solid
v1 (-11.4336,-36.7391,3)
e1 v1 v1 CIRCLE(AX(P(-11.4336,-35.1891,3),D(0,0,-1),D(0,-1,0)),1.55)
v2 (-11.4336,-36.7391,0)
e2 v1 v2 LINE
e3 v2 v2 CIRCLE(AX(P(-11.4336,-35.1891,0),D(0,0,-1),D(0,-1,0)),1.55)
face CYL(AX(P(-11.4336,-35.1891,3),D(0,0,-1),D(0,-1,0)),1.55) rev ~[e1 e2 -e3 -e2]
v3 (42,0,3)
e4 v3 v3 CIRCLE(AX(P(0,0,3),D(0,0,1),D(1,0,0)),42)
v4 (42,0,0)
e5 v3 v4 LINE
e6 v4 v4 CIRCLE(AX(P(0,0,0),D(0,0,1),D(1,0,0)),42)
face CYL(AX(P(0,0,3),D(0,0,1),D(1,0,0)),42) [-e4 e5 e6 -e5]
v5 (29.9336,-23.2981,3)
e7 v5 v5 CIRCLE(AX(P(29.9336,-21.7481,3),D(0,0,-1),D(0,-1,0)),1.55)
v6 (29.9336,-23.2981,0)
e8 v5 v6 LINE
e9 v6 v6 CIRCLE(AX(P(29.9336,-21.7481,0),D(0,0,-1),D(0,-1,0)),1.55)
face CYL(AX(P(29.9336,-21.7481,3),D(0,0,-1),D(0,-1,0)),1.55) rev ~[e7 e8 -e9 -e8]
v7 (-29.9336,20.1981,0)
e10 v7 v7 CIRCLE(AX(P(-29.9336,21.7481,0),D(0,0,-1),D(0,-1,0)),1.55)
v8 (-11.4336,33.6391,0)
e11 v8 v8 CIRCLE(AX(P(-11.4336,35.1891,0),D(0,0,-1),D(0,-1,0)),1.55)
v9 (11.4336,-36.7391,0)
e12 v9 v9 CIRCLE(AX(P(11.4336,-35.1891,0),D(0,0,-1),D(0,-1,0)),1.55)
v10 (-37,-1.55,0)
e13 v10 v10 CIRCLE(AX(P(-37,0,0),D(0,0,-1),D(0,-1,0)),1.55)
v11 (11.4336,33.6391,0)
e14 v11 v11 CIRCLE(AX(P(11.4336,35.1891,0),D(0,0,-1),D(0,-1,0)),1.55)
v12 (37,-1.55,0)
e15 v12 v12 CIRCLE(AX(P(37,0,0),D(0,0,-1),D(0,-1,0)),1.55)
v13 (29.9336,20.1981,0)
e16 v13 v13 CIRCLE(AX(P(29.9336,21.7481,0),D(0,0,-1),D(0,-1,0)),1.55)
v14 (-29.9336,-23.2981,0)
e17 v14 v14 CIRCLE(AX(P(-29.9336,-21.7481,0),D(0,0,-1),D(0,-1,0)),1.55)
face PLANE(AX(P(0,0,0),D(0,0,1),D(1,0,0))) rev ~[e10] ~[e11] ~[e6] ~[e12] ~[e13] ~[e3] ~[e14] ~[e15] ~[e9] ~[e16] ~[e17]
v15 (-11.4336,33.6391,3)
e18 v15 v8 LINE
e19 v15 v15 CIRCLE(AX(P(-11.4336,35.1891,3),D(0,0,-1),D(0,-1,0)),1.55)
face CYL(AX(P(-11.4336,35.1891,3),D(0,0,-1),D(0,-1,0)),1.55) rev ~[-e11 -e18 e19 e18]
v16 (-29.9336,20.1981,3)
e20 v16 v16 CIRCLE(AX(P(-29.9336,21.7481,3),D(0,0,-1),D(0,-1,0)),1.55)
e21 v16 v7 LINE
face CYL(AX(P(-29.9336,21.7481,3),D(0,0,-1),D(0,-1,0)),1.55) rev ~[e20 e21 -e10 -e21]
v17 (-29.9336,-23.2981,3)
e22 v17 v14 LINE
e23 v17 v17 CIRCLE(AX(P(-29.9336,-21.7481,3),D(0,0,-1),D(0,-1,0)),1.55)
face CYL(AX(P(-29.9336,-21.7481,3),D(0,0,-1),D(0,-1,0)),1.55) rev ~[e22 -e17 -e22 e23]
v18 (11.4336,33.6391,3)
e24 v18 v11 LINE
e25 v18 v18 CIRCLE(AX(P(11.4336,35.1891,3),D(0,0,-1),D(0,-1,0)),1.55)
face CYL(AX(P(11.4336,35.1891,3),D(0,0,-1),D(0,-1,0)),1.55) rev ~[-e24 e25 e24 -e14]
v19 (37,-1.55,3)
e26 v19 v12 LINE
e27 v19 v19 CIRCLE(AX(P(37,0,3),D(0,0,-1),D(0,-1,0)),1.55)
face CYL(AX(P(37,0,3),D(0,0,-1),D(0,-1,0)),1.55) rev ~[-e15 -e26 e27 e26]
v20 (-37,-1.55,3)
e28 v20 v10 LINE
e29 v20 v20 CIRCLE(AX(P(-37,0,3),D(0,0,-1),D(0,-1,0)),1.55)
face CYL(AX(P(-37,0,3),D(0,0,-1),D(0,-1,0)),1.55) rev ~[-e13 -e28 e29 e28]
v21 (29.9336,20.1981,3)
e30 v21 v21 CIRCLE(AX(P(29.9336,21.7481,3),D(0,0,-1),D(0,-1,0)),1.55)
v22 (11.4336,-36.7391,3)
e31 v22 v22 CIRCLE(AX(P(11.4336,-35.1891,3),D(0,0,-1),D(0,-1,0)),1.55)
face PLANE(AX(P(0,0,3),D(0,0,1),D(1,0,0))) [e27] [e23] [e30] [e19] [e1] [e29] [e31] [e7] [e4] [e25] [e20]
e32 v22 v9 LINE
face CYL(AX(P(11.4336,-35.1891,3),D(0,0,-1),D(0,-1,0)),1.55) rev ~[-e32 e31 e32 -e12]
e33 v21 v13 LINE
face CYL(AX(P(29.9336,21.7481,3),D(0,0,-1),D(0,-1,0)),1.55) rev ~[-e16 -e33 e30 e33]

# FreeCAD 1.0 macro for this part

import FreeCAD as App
import Part
import Sketcher

doc = App.newDocument("Part")
body = doc.addObject("PartDesign::Body", "Body")

# Sketch on XY plane
sketch1 = body.newObject("Sketcher::SketchObject", "Sketch")
sketch1.AttachmentSupport = (doc.getObject("XY_Plane"), [""])
sketch1.MapMode = "FlatFace"
sketch1.addGeometry([
    Part.Circle(App.Vector(0, 0, 0), App.Vector(0, 0, 1), 40),  # 0
    Part.Circle(App.Vector(-29.9336, -21.7481, 0), App.Vector(0, 0, 1), 1.4),  # 1
    Part.Circle(App.Vector(-11.4336, -35.1891, 0), App.Vector(0, 0, 1), 1.4),  # 2
    Part.Circle(App.Vector(11.4336, -35.1891, 0), App.Vector(0, 0, 1), 1.4),  # 3
    Part.Circle(App.Vector(29.9336, -21.7481, 0), App.Vector(0, 0, 1), 1.4),  # 4
    Part.Circle(App.Vector(-37, 0, 0), App.Vector(0, 0, 1), 1.4),  # 5
    Part.Circle(App.Vector(-29.9336, 21.7481, 0), App.Vector(0, 0, 1), 1.4),  # 6
    Part.Circle(App.Vector(-11.4336, 35.1891, 0), App.Vector(0, 0, 1), 1.4),  # 7
    Part.Circle(App.Vector(37, 0, 0), App.Vector(0, 0, 1), 1.4),  # 8
    Part.Circle(App.Vector(11.4336, 35.1891, 0), App.Vector(0, 0, 1), 1.4),  # 9
    Part.Circle(App.Vector(29.9336, 21.7481, 0), App.Vector(0, 0, 1), 1.4),  # 10
], False)
sketch1.addConstraint([
    Sketcher.Constraint("Coincident", 0, 3, -1, 1),
    Sketcher.Constraint("Equal", 1, 2),
    Sketcher.Constraint("Equal", 2, 3),
    Sketcher.Constraint("Equal", 3, 4),
    Sketcher.Constraint("Equal", 4, 5),
    Sketcher.Constraint("Equal", 5, 6),
    Sketcher.Constraint("Equal", 6, 7),
    Sketcher.Constraint("Equal", 7, 8),
    Sketcher.Constraint("Equal", 8, 9),
    Sketcher.Constraint("Equal", 9, 10),
    Sketcher.Constraint("Symmetric", 4, 3, 6, 3, -1, 1),
    Sketcher.Constraint("Symmetric", 3, 3, 7, 3, -1, 1),
    Sketcher.Constraint("Symmetric", 5, 3, 8, 3, -1, 1),
    Sketcher.Constraint("Symmetric", 2, 3, 9, 3, -1, 1),
    Sketcher.Constraint("Symmetric", 1, 3, 10, 3, -1, 1),
    Sketcher.Constraint("Symmetric", 2, 3, 3, 3, -2),
    Sketcher.Constraint("Symmetric", 1, 3, 4, 3, -2),
    Sketcher.Constraint("PointOnObject", 5, 3, -1),
    Sketcher.Constraint("Diameter", 0, 80.0),
    Sketcher.Constraint("Diameter", 1, 2.8),
    Sketcher.Constraint("DistanceX", 5, 3, -1, 1, 37.0),
    Sketcher.Constraint("DistanceX", 1, 3, 2, 3, 18.5),
    Sketcher.Constraint("DistanceY", 1, 3, -1, 1, 21.748),
    Sketcher.Constraint("DistanceY", 2, 3, -1, 1, 35.189),
    Sketcher.Constraint("DistanceX", 1, 3, -1, 1, 29.9336),
])
pad1 = body.newObject("PartDesign::Pad", "Pad")
pad1.Profile = sketch1
pad1.Length = 3

# Sketch on XY plane
sketch2 = body.newObject("Sketcher::SketchObject", "Sketch001")
sketch2.AttachmentSupport = (doc.getObject("XY_Plane"), [""])
sketch2.MapMode = "FlatFace"
sketch2.AttachmentOffset = App.Placement(App.Vector(0, 0, 3), App.Rotation())
sketch2.addGeometry([
    Part.Circle(App.Vector(29.9336, 21.7481, 0), App.Vector(0, 0, 1), 1.55),  # 0
    Part.Circle(App.Vector(37, 0, 0), App.Vector(0, 0, 1), 1.55),  # 1
    Part.Circle(App.Vector(29.9336, -21.7481, 0), App.Vector(0, 0, 1), 1.55),  # 2
    Part.Circle(App.Vector(11.4336, -35.1891, 0), App.Vector(0, 0, 1), 1.55),  # 3
    Part.Circle(App.Vector(-11.4336, -35.1891, 0), App.Vector(0, 0, 1), 1.55),  # 4
    Part.Circle(App.Vector(-29.9336, -21.7481, 0), App.Vector(0, 0, 1), 1.55),  # 5
    Part.Circle(App.Vector(-37, 0, 0), App.Vector(0, 0, 1), 1.55),  # 6
    Part.Circle(App.Vector(-29.9336, 21.7481, 0), App.Vector(0, 0, 1), 1.55),  # 7
    Part.Circle(App.Vector(-11.4336, 35.1891, 0), App.Vector(0, 0, 1), 1.55),  # 8
    Part.Circle(App.Vector(11.4336, 35.1891, 0), App.Vector(0, 0, 1), 1.55),  # 9
], False)
sketch2.addConstraint([
    Sketcher.Constraint("Equal", 0, 1),
    Sketcher.Constraint("Equal", 1, 2),
    Sketcher.Constraint("Equal", 2, 3),
    Sketcher.Constraint("Equal", 3, 4),
    Sketcher.Constraint("Equal", 4, 5),
    Sketcher.Constraint("Equal", 5, 6),
    Sketcher.Constraint("Equal", 6, 7),
    Sketcher.Constraint("Equal", 7, 8),
    Sketcher.Constraint("Equal", 8, 9),
    Sketcher.Constraint("Symmetric", 0, 3, 5, 3, -1, 1),
    Sketcher.Constraint("Symmetric", 1, 3, 6, 3, -1, 1),
    Sketcher.Constraint("Symmetric", 2, 3, 7, 3, -1, 1),
    Sketcher.Constraint("Symmetric", 3, 3, 8, 3, -1, 1),
    Sketcher.Constraint("Symmetric", 4, 3, 9, 3, -1, 1),
    Sketcher.Constraint("Symmetric", 3, 3, 4, 3, -2),
    Sketcher.Constraint("Symmetric", 2, 3, 5, 3, -2),
    Sketcher.Constraint("PointOnObject", 1, 3, -1),
    Sketcher.Constraint("Diameter", 0, 3.1),
    Sketcher.Constraint("DistanceX", -1, 1, 1, 3, 37.0),
    Sketcher.Constraint("DistanceX", 3, 3, 2, 3, 18.5),
    Sketcher.Constraint("DistanceY", -1, 1, 0, 3, 21.748),
    Sketcher.Constraint("DistanceY", 3, 3, -1, 1, 35.189),
    Sketcher.Constraint("DistanceX", -1, 1, 0, 3, 29.9336),
])
doc.recompute()
hole = body.newObject("PartDesign::Hole", "Hole")
hole.Profile = sketch2
hole.ThreadType = "None"
hole.Diameter = 3.1
hole.DepthType = "ThroughAll"

# Sketch on XY plane
sketch3 = body.newObject("Sketcher::SketchObject", "Sketch002")
sketch3.AttachmentSupport = (doc.getObject("XY_Plane"), [""])
sketch3.MapMode = "FlatFace"
sketch3.AttachmentOffset = App.Placement(App.Vector(0, 0, 3), App.Rotation())
sketch3.addGeometry([
    Part.Circle(App.Vector(0, 0, 0), App.Vector(0, 0, 1), 42),
    Part.Circle(App.Vector(0, 0, 0), App.Vector(0, 0, 1), 40),
], False)
sketch3.addConstraint([
    Sketcher.Constraint("Coincident", 0, 3, -1, 1),
    Sketcher.Constraint("Coincident", 1, 3, -1, 1),
    Sketcher.Constraint("Diameter", 0, 84.0),
    Sketcher.Constraint("Diameter", 1, 80.0),
])
pad2 = body.newObject("PartDesign::Pad", "Pad001")
pad2.Profile = sketch3
pad2.Length = 3
pad2.Reversed = True

doc.recompute()
